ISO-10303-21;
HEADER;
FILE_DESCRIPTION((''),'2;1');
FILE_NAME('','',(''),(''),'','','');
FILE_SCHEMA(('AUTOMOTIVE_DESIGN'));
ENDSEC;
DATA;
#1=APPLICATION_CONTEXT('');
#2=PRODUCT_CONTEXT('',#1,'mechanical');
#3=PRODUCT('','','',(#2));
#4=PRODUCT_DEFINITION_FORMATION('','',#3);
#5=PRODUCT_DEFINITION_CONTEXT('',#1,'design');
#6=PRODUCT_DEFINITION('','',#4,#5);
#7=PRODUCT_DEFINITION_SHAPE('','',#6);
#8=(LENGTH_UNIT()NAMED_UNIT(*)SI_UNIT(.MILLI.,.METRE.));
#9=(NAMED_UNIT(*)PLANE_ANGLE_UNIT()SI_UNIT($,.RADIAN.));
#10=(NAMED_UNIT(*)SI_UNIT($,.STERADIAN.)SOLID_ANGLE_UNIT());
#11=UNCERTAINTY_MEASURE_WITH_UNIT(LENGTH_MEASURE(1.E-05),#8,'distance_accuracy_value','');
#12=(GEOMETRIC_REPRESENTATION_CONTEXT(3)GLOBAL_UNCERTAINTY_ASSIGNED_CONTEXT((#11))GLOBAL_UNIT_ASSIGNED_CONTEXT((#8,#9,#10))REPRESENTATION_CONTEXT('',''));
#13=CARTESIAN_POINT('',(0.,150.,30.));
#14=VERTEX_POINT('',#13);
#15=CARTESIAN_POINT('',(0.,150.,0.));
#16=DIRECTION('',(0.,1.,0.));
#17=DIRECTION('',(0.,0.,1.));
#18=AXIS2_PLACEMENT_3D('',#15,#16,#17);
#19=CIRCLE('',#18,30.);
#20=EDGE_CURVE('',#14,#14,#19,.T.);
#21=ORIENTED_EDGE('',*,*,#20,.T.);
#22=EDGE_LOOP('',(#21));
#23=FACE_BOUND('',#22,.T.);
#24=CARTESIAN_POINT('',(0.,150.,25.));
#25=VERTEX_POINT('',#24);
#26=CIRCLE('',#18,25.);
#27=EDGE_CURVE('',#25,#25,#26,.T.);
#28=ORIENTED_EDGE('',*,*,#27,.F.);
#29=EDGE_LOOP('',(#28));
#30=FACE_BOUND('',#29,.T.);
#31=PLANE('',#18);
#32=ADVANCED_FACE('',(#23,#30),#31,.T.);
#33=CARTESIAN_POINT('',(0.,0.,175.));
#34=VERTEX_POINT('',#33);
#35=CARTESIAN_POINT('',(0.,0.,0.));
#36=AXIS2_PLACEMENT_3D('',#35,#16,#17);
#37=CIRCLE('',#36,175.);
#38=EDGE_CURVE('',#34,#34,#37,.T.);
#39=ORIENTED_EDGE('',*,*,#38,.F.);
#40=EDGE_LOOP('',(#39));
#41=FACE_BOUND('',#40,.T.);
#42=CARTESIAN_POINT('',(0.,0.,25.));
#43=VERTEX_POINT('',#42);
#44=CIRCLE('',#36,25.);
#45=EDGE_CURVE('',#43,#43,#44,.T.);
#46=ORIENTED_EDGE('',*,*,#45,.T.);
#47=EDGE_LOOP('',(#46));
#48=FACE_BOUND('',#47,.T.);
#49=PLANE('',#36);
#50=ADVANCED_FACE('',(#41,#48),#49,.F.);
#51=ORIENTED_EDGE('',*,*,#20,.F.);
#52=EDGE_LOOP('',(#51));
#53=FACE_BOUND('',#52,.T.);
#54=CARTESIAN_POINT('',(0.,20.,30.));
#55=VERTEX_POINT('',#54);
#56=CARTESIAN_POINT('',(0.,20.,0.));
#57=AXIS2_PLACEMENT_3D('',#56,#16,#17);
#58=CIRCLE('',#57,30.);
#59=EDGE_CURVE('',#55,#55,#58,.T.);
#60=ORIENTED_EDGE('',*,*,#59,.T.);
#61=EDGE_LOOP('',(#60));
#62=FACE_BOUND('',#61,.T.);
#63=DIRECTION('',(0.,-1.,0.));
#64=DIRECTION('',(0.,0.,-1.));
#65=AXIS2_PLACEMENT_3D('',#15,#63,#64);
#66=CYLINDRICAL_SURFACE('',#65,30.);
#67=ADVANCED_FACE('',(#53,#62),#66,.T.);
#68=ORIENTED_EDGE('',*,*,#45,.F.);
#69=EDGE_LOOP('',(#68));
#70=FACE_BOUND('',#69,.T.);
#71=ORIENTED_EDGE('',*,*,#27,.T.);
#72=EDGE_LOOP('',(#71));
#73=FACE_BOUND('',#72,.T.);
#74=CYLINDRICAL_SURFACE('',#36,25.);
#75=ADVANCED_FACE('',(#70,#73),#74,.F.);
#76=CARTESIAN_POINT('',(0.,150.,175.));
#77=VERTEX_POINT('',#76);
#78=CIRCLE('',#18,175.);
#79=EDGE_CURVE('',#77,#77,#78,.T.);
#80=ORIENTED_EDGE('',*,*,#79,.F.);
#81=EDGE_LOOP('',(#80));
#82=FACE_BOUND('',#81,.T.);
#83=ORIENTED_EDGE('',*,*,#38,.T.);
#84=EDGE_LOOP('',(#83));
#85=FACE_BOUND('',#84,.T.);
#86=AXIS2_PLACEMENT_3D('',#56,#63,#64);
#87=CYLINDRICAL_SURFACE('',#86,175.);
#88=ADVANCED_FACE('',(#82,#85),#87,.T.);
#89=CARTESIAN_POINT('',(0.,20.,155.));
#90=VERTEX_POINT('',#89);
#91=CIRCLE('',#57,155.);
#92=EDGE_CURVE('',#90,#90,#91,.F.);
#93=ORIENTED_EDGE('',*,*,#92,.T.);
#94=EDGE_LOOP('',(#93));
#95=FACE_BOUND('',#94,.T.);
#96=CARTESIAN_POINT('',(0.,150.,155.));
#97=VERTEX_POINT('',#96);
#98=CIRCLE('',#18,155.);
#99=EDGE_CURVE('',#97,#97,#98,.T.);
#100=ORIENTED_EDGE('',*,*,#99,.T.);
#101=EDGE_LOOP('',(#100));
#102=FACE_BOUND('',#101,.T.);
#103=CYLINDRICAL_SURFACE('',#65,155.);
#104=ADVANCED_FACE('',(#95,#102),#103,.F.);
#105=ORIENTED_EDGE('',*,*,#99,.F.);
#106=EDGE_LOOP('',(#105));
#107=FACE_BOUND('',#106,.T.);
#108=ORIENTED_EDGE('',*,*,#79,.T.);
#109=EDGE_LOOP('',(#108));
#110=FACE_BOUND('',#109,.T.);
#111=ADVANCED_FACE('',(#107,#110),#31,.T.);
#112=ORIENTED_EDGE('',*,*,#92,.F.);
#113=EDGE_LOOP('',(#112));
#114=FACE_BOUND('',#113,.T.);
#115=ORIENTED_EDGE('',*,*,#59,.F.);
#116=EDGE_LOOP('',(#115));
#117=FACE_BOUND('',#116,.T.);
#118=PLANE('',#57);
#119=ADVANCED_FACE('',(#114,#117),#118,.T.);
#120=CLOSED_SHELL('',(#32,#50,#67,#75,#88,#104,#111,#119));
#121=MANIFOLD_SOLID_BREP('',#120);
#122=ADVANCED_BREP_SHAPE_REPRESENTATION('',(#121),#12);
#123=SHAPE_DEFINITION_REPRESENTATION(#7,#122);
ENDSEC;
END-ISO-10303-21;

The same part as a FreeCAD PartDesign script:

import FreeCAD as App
import Part
import Sketcher
from FreeCAD import Vector

doc = App.newDocument("Part")
body = doc.addObject("PartDesign::Body", "Body")

# Sketch on XZ plane
sketch1 = body.newObject("Sketcher::SketchObject", "Sketch")
sketch1.AttachmentSupport = (doc.getObject("XZ_Plane"), [""])
sketch1.MapMode = "FlatFace"
sketch1.addGeometry(Part.Circle(Vector(0, 0, 0), Vector(0, 0, 1), 175), False)
sketch1.addConstraint(Sketcher.Constraint("Coincident", 0, 3, -1, 1))
sketch1.addConstraint(Sketcher.Constraint("Diameter", 0, 350.0))
pad1 = body.newObject("PartDesign::Pad", "Pad")
pad1.Profile = sketch1
pad1.Length = 20
pad1.Reversed = True

# Sketch on XZ plane
sketch2 = body.newObject("Sketcher::SketchObject", "Sketch001")
sketch2.AttachmentSupport = (doc.getObject("XZ_Plane"), [""])
sketch2.MapMode = "FlatFace"
sketch2.AttachmentOffset = App.Placement(Vector(0, 0, -20), App.Rotation())
sketch2.addGeometry(Part.Circle(Vector(0, 0, 0), Vector(0, 0, 1), 175), False)
sketch2.addGeometry(Part.Circle(Vector(0, 0, 0), Vector(0, 0, 1), 155), False)
sketch2.addConstraint(Sketcher.Constraint("Coincident", 0, 3, -1, 1))
sketch2.addConstraint(Sketcher.Constraint("Coincident", 1, 3, -1, 1))
sketch2.addConstraint(Sketcher.Constraint("Diameter", 0, 350.0))
sketch2.addConstraint(Sketcher.Constraint("Diameter", 1, 310.0))
pad2 = body.newObject("PartDesign::Pad", "Pad001")
pad2.Profile = sketch2
pad2.Length = 130
pad2.Reversed = True

# Sketch on XZ plane
sketch3 = body.newObject("Sketcher::SketchObject", "Sketch002")
sketch3.AttachmentSupport = (doc.getObject("XZ_Plane"), [""])
sketch3.MapMode = "FlatFace"
sketch3.AttachmentOffset = App.Placement(Vector(0, 0, -20), App.Rotation())
sketch3.addGeometry(Part.Circle(Vector(0, 0, 0), Vector(0, 0, 1), 25), False)
sketch3.addConstraint(Sketcher.Constraint("Coincident", 0, 3, -1, 1))
sketch3.addConstraint(Sketcher.Constraint("Diameter", 0, 50.0))
pocket1 = body.newObject("PartDesign::Pocket", "Pocket")
pocket1.Profile = sketch3
pocket1.Type = "ThroughAll"
pocket1.Midplane = True

# Sketch on XZ plane
sketch4 = body.newObject("Sketcher::SketchObject", "Sketch003")
sketch4.AttachmentSupport = (doc.getObject("XZ_Plane"), [""])
sketch4.MapMode = "FlatFace"
sketch4.AttachmentOffset = App.Placement(Vector(0, 0, -20), App.Rotation())
sketch4.addGeometry(Part.Circle(Vector(0, 0, 0), Vector(0, 0, 1), 30), False)
sketch4.addGeometry(Part.Circle(Vector(0, 0, 0), Vector(0, 0, 1), 25), False)
sketch4.addConstraint(Sketcher.Constraint("Coincident", 0, 3, -1, 1))
sketch4.addConstraint(Sketcher.Constraint("Coincident", 1, 3, -1, 1))
sketch4.addConstraint(Sketcher.Constraint("Diameter", 0, 60.0))
sketch4.addConstraint(Sketcher.Constraint("Diameter", 1, 50.0))
pad3 = body.newObject("PartDesign::Pad", "Pad002")
pad3.Profile = sketch4
pad3.Length = 130
pad3.Reversed = True

doc.recompute()
